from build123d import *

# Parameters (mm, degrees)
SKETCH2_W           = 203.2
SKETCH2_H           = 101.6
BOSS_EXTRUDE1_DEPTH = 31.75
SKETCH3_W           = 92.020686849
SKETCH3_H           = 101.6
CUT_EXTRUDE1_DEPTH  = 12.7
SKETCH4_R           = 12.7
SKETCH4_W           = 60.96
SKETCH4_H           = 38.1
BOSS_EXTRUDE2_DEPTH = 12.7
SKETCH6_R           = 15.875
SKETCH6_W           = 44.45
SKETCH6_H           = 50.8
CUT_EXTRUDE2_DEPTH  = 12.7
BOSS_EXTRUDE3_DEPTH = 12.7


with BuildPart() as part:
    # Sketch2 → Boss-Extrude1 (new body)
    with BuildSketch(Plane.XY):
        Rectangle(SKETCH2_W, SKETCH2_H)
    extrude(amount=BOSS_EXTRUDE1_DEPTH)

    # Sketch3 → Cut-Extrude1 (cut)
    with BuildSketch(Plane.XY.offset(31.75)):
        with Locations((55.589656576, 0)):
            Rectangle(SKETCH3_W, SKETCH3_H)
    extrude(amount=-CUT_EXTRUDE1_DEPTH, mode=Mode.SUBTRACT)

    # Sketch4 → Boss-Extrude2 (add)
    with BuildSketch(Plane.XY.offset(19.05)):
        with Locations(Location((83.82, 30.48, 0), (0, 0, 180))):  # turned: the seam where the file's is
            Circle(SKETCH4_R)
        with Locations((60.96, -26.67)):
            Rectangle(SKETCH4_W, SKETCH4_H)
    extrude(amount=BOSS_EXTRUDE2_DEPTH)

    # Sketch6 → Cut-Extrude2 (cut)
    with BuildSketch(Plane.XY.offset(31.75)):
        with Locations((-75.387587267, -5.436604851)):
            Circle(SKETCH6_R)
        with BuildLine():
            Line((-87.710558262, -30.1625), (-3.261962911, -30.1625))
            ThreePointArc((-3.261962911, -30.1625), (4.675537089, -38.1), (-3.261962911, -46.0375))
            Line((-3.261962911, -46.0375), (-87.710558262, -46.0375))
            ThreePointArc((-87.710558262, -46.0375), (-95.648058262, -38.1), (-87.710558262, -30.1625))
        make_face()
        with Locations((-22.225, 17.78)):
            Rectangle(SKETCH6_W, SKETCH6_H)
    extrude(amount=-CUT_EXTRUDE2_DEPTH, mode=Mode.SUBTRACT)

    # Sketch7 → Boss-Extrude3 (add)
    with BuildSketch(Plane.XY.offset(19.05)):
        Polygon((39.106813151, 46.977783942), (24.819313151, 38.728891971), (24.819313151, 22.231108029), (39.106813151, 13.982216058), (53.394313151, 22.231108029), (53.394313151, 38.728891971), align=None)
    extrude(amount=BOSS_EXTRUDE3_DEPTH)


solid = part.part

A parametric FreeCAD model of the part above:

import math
import FreeCAD as App
import Part
import Sketcher
from FreeCAD import Vector
Q = App.Units.Quantity

doc = App.newDocument("Part")
body = doc.addObject("PartDesign::Body", "Body")

sketch1 = body.newObject("Sketcher::SketchObject", "Sketch")
sketch1.AttachmentSupport = (doc.getObject("XY_Plane"), [""])
sketch1.MapMode = "FlatFace"
sketch1.addGeometry(Part.LineSegment(Vector(-102, 51, 0), Vector(-102, -51, 0)), False)
sketch1.addGeometry(Part.LineSegment(Vector(-102, -51, 0), Vector(102, -51, 0)), False)
sketch1.addGeometry(Part.LineSegment(Vector(102, -51, 0), Vector(102, 51, 0)), False)
sketch1.addGeometry(Part.LineSegment(Vector(102, 51, 0), Vector(-102, 51, 0)), False)
sketch1.addConstraint(Sketcher.Constraint("Coincident", 0, 2, 1, 1))
sketch1.addConstraint(Sketcher.Constraint("Coincident", 1, 2, 2, 1))
sketch1.addConstraint(Sketcher.Constraint("Coincident", 2, 2, 3, 1))
sketch1.addConstraint(Sketcher.Constraint("Coincident", 3, 2, 0, 1))
sketch1.addConstraint(Sketcher.Constraint("Vertical", 0))
sketch1.addConstraint(Sketcher.Constraint("Horizontal", 1))
sketch1.addConstraint(Sketcher.Constraint("Vertical", 2))
sketch1.addConstraint(Sketcher.Constraint("Horizontal", 3))
sketch1.addConstraint(Sketcher.Constraint("Symmetric", 0, 2, 2, 2, -1, 1))
sketch1.addConstraint(Sketcher.Constraint("DistanceX", 1, 1, 1, 2, Q("8 in")))
sketch1.addConstraint(Sketcher.Constraint("DistanceY", 0, 2, 0, 1, Q("4 in")))
pad1 = body.newObject("PartDesign::Pad", "Pad")
pad1.Profile = sketch1
pad1.Length = Q("1.25 in")

sketch2 = body.newObject("Sketcher::SketchObject", "Sketch001")
sketch2.AttachmentSupport = (doc.getObject("XY_Plane"), [""])
sketch2.MapMode = "FlatFace"
sketch2.AttachmentOffset = App.Placement(Vector(0, 0, 1.25 * 25.4), App.Rotation())
sketch2.addGeometry(Part.LineSegment(Vector(10, 51, 0), Vector(10, -51, 0)), False)
sketch2.addGeometry(Part.LineSegment(Vector(10, -51, 0), Vector(102, -51, 0)), False)
sketch2.addGeometry(Part.LineSegment(Vector(102, -51, 0), Vector(102, 51, 0)), False)
sketch2.addGeometry(Part.LineSegment(Vector(102, 51, 0), Vector(10, 51, 0)), False)
sketch2.addConstraint(Sketcher.Constraint("Coincident", 0, 2, 1, 1))
sketch2.addConstraint(Sketcher.Constraint("Coincident", 1, 2, 2, 1))
sketch2.addConstraint(Sketcher.Constraint("Coincident", 2, 2, 3, 1))
sketch2.addConstraint(Sketcher.Constraint("Coincident", 3, 2, 0, 1))
sketch2.addConstraint(Sketcher.Constraint("Vertical", 0))
sketch2.addConstraint(Sketcher.Constraint("Horizontal", 1))
sketch2.addConstraint(Sketcher.Constraint("Vertical", 2))
sketch2.addConstraint(Sketcher.Constraint("Horizontal", 3))
sketch2.addConstraint(Sketcher.Constraint("DistanceY", 0, 2, 0, 1, Q("4 in")))
sketch2.addConstraint(Sketcher.Constraint("DistanceY", 0, 2, -1, 1, Q("2 in")))
sketch2.addConstraint(Sketcher.Constraint("DistanceX", -1, 1, 1, 2, Q("4 in")))
sketch2.addConstraint(Sketcher.Constraint("DistanceX", 1, 1, 1, 2, Q("92.020687 mm")))
pocket1 = body.newObject("PartDesign::Pocket", "Pocket")
pocket1.Profile = sketch2
pocket1.Length = Q("0.5 in")

sketch3 = body.newObject("Sketcher::SketchObject", "Sketch002")
sketch3.AttachmentSupport = (doc.getObject("XY_Plane"), [""])
sketch3.MapMode = "FlatFace"
sketch3.AttachmentOffset = App.Placement(Vector(0, 0, 0.75 * 25.4), App.Rotation())
sketch3.addGeometry(Part.Circle(Vector(84, 30, 0), Vector(0, 0, 1), 13), False)
sketch3.addGeometry(Part.LineSegment(Vector(30, -8, 0), Vector(30, -46, 0)), False)
sketch3.addGeometry(Part.LineSegment(Vector(30, -46, 0), Vector(91, -46, 0)), False)
sketch3.addGeometry(Part.LineSegment(Vector(91, -46, 0), Vector(91, -8, 0)), False)
sketch3.addGeometry(Part.LineSegment(Vector(91, -8, 0), Vector(30, -8, 0)), False)
sketch3.addConstraint(Sketcher.Constraint("Coincident", 1, 2, 2, 1))
sketch3.addConstraint(Sketcher.Constraint("Coincident", 2, 2, 3, 1))
sketch3.addConstraint(Sketcher.Constraint("Coincident", 3, 2, 4, 1))
sketch3.addConstraint(Sketcher.Constraint("Coincident", 4, 2, 1, 1))
sketch3.addConstraint(Sketcher.Constraint("Vertical", 1))
sketch3.addConstraint(Sketcher.Constraint("Horizontal", 2))
sketch3.addConstraint(Sketcher.Constraint("Vertical", 3))
sketch3.addConstraint(Sketcher.Constraint("Horizontal", 4))
sketch3.addConstraint(Sketcher.Constraint("Diameter", 0, Q("1 in")))
sketch3.addConstraint(Sketcher.Constraint("DistanceX", 2, 1, 2, 2, Q("2.4 in")))
sketch3.addConstraint(Sketcher.Constraint("DistanceY", 1, 2, 1, 1, Q("1.5 in")))
sketch3.addConstraint(Sketcher.Constraint("DistanceY", 1, 2, 0, 3, Q("3 in")))
sketch3.addConstraint(Sketcher.Constraint("DistanceX", -1, 1, 0, 3, Q("3.3 in")))
sketch3.addConstraint(Sketcher.Constraint("DistanceY", -1, 1, 0, 3, Q("1.2 in")))
sketch3.addConstraint(Sketcher.Constraint("DistanceX", -1, 1, 1, 2, Q("1.2 in")))
pad2 = body.newObject("PartDesign::Pad", "Pad001")
pad2.Profile = sketch3
pad2.Length = Q("0.5 in")

sketch4 = body.newObject("Sketcher::SketchObject", "Sketch003")
sketch4.AttachmentSupport = (doc.getObject("XY_Plane"), [""])
sketch4.MapMode = "FlatFace"
sketch4.AttachmentOffset = App.Placement(Vector(0, 0, 1.25 * 25.4), App.Rotation())
sketch4.addGeometry(Part.Circle(Vector(-75, -5, 0), Vector(0, 0, 1), 16), False)
sketch4.addGeometry(Part.LineSegment(Vector(-3, -30, 0), Vector(-88, -30, 0)), False)
sketch4.addGeometry(Part.ArcOfCircle(Part.Circle(Vector(-88, -38, 0), Vector(0, 0, 1), 8), math.radians(90), math.radians(270)), False)
sketch4.addGeometry(Part.LineSegment(Vector(-88, -46, 0), Vector(-3, -46, 0)), False)
sketch4.addGeometry(Part.ArcOfCircle(Part.Circle(Vector(-3, -38, 0), Vector(0, 0, 1), 8), math.radians(-90), math.radians(90)), False)
sketch4.addGeometry(Part.LineSegment(Vector(-44, 43, 0), Vector(-44, -8, 0)), False)
sketch4.addGeometry(Part.LineSegment(Vector(-44, -8, 0), Vector(0, -8, 0)), False)
sketch4.addGeometry(Part.LineSegment(Vector(0, -8, 0), Vector(0, 43, 0)), False)
sketch4.addGeometry(Part.LineSegment(Vector(0, 43, 0), Vector(-44, 43, 0)), False)
sketch4.addConstraint(Sketcher.Constraint("Tangent", 1, 2, 2, 1))
sketch4.addConstraint(Sketcher.Constraint("Tangent", 2, 2, 3, 1))
sketch4.addConstraint(Sketcher.Constraint("Tangent", 3, 2, 4, 1))
sketch4.addConstraint(Sketcher.Constraint("Tangent", 4, 2, 1, 1))
sketch4.addConstraint(Sketcher.Constraint("Coincident", 5, 2, 6, 1))
sketch4.addConstraint(Sketcher.Constraint("Coincident", 6, 2, 7, 1))
sketch4.addConstraint(Sketcher.Constraint("Coincident", 7, 2, 8, 1))
sketch4.addConstraint(Sketcher.Constraint("Coincident", 8, 2, 5, 1))
sketch4.addConstraint(Sketcher.Constraint("Horizontal", 1))
sketch4.addConstraint(Sketcher.Constraint("Horizontal", 3))
sketch4.addConstraint(Sketcher.Constraint("Vertical", 5))
sketch4.addConstraint(Sketcher.Constraint("Horizontal", 6))
sketch4.addConstraint(Sketcher.Constraint("Vertical", 7))
sketch4.addConstraint(Sketcher.Constraint("Horizontal", 8))
sketch4.addConstraint(Sketcher.Constraint("PointOnObject", 6, 2, -2))
sketch4.addConstraint(Sketcher.Constraint("Diameter", 0, Q("1.25 in")))
sketch4.addConstraint(Sketcher.Constraint("DistanceY", 5, 2, 5, 1, Q("2 in")))
sketch4.addConstraint(Sketcher.Constraint("Radius", 2, Q("0.3125 in")))
sketch4.addConstraint(Sketcher.Constraint("DistanceX", 6, 1, 6, 2, Q("1.75 in")))
sketch4.addConstraint(Sketcher.Constraint("DistanceY", 2, 3, -1, 1, Q("1.5 in")))
sketch4.addConstraint(Sketcher.Constraint("DistanceY", 5, 2, -1, 1, Q("0.3 in")))
sketch4.addConstraint(Sketcher.Constraint("DistanceX", 1, 2, 1, 1, Q("84.448595 mm")))
sketch4.addConstraint(Sketcher.Constraint("DistanceX", 2, 3, -1, 1, Q("87.710558 mm")))
sketch4.addConstraint(Sketcher.Constraint("DistanceX", 2, 3, 0, 3, Q("12.322971 mm")))
sketch4.addConstraint(Sketcher.Constraint("DistanceY", 0, 3, -1, 1, Q("5.436605 mm")))
pocket2 = body.newObject("PartDesign::Pocket", "Pocket001")
pocket2.Profile = sketch4
pocket2.Length = Q("0.5 in")

sketch5 = body.newObject("Sketcher::SketchObject", "Sketch004")
sketch5.AttachmentSupport = (doc.getObject("XY_Plane"), [""])
sketch5.MapMode = "FlatFace"
sketch5.AttachmentOffset = App.Placement(Vector(0, 0, 0.75 * 25.4), App.Rotation())
sketch5.addGeometry(Part.LineSegment(Vector(39, 47, 0), Vector(25, 39, 0)), False)
sketch5.addGeometry(Part.LineSegment(Vector(25, 39, 0), Vector(25, 22, 0)), False)
sketch5.addGeometry(Part.LineSegment(Vector(25, 22, 0), Vector(39, 14, 0)), False)
sketch5.addGeometry(Part.LineSegment(Vector(39, 14, 0), Vector(53, 22, 0)), False)
sketch5.addGeometry(Part.LineSegment(Vector(53, 22, 0), Vector(53, 39, 0)), False)
sketch5.addGeometry(Part.LineSegment(Vector(53, 39, 0), Vector(39, 47, 0)), False)
sketch5.addConstraint(Sketcher.Constraint("Coincident", 0, 2, 1, 1))
sketch5.addConstraint(Sketcher.Constraint("Coincident", 1, 2, 2, 1))
sketch5.addConstraint(Sketcher.Constraint("Coincident", 2, 2, 3, 1))
sketch5.addConstraint(Sketcher.Constraint("Coincident", 3, 2, 4, 1))
sketch5.addConstraint(Sketcher.Constraint("Coincident", 4, 2, 5, 1))
sketch5.addConstraint(Sketcher.Constraint("Coincident", 5, 2, 0, 1))
sketch5.addConstraint(Sketcher.Constraint("Vertical", 1))
sketch5.addConstraint(Sketcher.Constraint("Vertical", 4))
sketch5.addConstraint(Sketcher.Constraint("Parallel", 0, 3))
sketch5.addConstraint(Sketcher.Constraint("Parallel", 2, 5))
sketch5.addConstraint(Sketcher.Constraint("Horizontal", 1, 2, 3, 2))
sketch5.addConstraint(Sketcher.Constraint("Horizontal", 0, 2, 4, 2))
sketch5.addConstraint(Sketcher.Constraint("Vertical", 2, 2, 5, 2))
sketch5.addConstraint(Sketcher.Constraint("Angle", 0, Q("-150 deg")))
sketch5.addConstraint(Sketcher.Constraint("DistanceX", 1, 2, 2, 2, Q("0.5625 in")))
sketch5.addConstraint(Sketcher.Constraint("DistanceY", 1, 2, 1, 1, Q("16.497784 mm")))
sketch5.addConstraint(Sketcher.Constraint("DistanceY", -1, 1, 0, 2, Q("38.728892 mm")))
sketch5.addConstraint(Sketcher.Constraint("DistanceX", -1, 1, 0, 2, Q("24.819313 mm")))
pad3 = body.newObject("PartDesign::Pad", "Pad002")
pad3.Profile = sketch5
pad3.Length = Q("0.5 in")

doc.recompute()
